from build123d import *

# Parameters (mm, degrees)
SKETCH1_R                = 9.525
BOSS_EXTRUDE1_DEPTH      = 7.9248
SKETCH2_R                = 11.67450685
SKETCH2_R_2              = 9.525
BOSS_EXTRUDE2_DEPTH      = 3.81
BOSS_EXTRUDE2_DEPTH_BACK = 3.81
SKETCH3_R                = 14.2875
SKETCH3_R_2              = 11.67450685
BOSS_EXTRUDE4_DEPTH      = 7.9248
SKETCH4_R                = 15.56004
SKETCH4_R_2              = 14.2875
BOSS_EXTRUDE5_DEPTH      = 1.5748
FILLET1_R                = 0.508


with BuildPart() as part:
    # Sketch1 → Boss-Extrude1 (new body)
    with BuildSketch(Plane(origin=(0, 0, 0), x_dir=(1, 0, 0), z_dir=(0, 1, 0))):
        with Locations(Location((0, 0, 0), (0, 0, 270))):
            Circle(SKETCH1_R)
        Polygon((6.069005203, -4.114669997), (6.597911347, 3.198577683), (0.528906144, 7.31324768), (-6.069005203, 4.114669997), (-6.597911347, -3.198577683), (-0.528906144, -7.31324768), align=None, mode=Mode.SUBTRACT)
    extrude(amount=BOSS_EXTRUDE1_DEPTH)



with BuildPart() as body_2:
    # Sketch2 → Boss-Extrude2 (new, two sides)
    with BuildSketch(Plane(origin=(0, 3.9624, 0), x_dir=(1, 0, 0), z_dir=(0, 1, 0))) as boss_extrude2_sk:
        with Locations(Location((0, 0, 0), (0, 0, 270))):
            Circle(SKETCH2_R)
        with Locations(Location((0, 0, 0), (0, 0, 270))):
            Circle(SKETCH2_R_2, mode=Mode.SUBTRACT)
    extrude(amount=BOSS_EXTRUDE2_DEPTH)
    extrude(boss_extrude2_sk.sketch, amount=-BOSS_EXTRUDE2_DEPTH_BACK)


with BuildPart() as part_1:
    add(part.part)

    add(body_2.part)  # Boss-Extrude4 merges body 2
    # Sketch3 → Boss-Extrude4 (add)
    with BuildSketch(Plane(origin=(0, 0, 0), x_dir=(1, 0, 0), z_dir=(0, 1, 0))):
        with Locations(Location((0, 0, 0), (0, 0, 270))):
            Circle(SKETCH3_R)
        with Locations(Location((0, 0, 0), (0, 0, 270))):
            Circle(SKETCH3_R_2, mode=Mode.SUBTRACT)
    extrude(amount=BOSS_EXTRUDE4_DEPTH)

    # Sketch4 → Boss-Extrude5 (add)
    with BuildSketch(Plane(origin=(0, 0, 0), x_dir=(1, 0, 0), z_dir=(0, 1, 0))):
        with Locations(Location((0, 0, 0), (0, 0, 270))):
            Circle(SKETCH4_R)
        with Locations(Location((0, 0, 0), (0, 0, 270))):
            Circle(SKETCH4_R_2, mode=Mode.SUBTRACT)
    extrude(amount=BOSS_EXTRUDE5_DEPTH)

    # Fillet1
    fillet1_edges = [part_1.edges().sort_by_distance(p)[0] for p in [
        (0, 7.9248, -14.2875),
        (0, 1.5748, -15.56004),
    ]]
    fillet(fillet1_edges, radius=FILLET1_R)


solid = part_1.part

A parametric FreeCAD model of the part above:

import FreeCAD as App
import Part
import Sketcher

V = App.Vector
Q = App.Units.Quantity


def edges_at(feature, points):
    """Names of the edges that pass closest to the given points."""
    edges = feature.Shape.Edges
    near = lambda p: min(range(len(edges)), key=lambda i: edges[i].distToShape(Part.Vertex(*p))[0])
    return sorted({f"Edge{near(p) + 1}" for p in points})

doc = App.newDocument("Part")
body = doc.addObject("PartDesign::Body", "Body")

sketch1 = body.newObject("Sketcher::SketchObject", "Sketch")
sketch1.AttachmentSupport = (doc.getObject("XZ_Plane"), [""])
sketch1.MapMode = "FlatFace"
sketch1.addGeometry(Part.Circle(V(0, 0, 0), V(0, 0, 1), 10), False)
sketch1.addGeometry(Part.LineSegment(V(7, -3, 0), V(6, 4, 0)), False)
sketch1.addGeometry(Part.LineSegment(V(6, 4, 0), V(-1, 7, 0)), False)
sketch1.addGeometry(Part.LineSegment(V(-1, 7, 0), V(-7, 3, 0)), False)
sketch1.addGeometry(Part.LineSegment(V(-7, 3, 0), V(-6, -4, 0)), False)
sketch1.addGeometry(Part.LineSegment(V(-6, -4, 0), V(1, -7, 0)), False)
sketch1.addGeometry(Part.LineSegment(V(1, -7, 0), V(7, -3, 0)), False)
sketch1.addConstraint(Sketcher.Constraint("Coincident", 1, 2, 2, 1))
sketch1.addConstraint(Sketcher.Constraint("Coincident", 2, 2, 3, 1))
sketch1.addConstraint(Sketcher.Constraint("Coincident", 3, 2, 4, 1))
sketch1.addConstraint(Sketcher.Constraint("Coincident", 4, 2, 5, 1))
sketch1.addConstraint(Sketcher.Constraint("Coincident", 5, 2, 6, 1))
sketch1.addConstraint(Sketcher.Constraint("Coincident", 6, 2, 1, 1))
sketch1.addConstraint(Sketcher.Constraint("Coincident", 0, 3, -1, 1))
sketch1.addConstraint(Sketcher.Constraint("Symmetric", 1, 2, 4, 2, -1, 1))
sketch1.addConstraint(Sketcher.Constraint("Symmetric", 2, 2, 5, 2, -1, 1))
sketch1.addConstraint(Sketcher.Constraint("Symmetric", 3, 2, 6, 2, -1, 1))
sketch1.addConstraint(Sketcher.Constraint("Equal", 1, 2))
sketch1.addConstraint(Sketcher.Constraint("Equal", 2, 3))
sketch1.addConstraint(Sketcher.Constraint("Diameter", 0, Q("0.75 in")))
sketch1.addConstraint(Sketcher.Constraint("DistanceX", 4, 2, 2, 2, Q("5.540099 mm")))
sketch1.addConstraint(Sketcher.Constraint("Distance", 1, Q("7.332348 mm")))
sketch1.addConstraint(Sketcher.Constraint("DistanceY", -1, 1, 1, 2, Q("4.11467 mm")))
sketch1.addConstraint(Sketcher.Constraint("DistanceX", 3, 2, -1, 1, Q("6.597911 mm")))
pad1 = body.newObject("PartDesign::Pad", "Pad")
pad1.Profile = sketch1
pad1.Length = Q("0.312 in")
pad1.Reversed = True
body2 = doc.addObject("PartDesign::Body", "Body001")

sketch2 = body2.newObject("Sketcher::SketchObject", "Sketch001")
sketch2.AttachmentSupport = (doc.getObject("XZ_Plane001"), [""])
sketch2.MapMode = "FlatFace"
sketch2.AttachmentOffset = App.Placement(V(0, 0, -0.156 * 25.4), App.Rotation())
sketch2.addGeometry(Part.Circle(V(0, 0, 0), V(0, 0, 1), 12), False)
sketch2.addGeometry(Part.Circle(V(0, 0, 0), V(0, 0, 1), 10), False)
sketch2.addConstraint(Sketcher.Constraint("Coincident", 0, 3, -1, 1))
sketch2.addConstraint(Sketcher.Constraint("Coincident", 1, 3, -1, 1))
sketch2.addConstraint(Sketcher.Constraint("Diameter", 1, Q("0.75 in")))
sketch2.addConstraint(Sketcher.Constraint("Diameter", 0, Q("23.349014 mm")))
pad2 = body2.newObject("PartDesign::Pad", "Pad001")
pad2.Profile = sketch2
pad2.Type = "TwoLengths"
pad2.Length = Q("0.15 in")
pad2.Length2 = Q("0.15 in")
pad2.Reversed = True
doc.recompute()

boolean = body.newObject("PartDesign::Boolean", "Boolean")
boolean.Type = "Fuse"
boolean.addObjects([body2])

sketch3 = body.newObject("Sketcher::SketchObject", "Sketch002")
sketch3.AttachmentSupport = (doc.getObject("XZ_Plane"), [""])
sketch3.MapMode = "FlatFace"
sketch3.addGeometry(Part.Circle(V(0, 0, 0), V(0, 0, 1), 14), False)
sketch3.addGeometry(Part.Circle(V(0, 0, 0), V(0, 0, 1), 12), False)
sketch3.addConstraint(Sketcher.Constraint("Coincident", 0, 3, -1, 1))
sketch3.addConstraint(Sketcher.Constraint("Coincident", 1, 3, -1, 1))
sketch3.addConstraint(Sketcher.Constraint("Diameter", 0, Q("1.125 in")))
sketch3.addConstraint(Sketcher.Constraint("Diameter", 1, Q("23.349014 mm")))
pad3 = body.newObject("PartDesign::Pad", "Pad002")
pad3.Profile = sketch3
pad3.Length = Q("0.312 in")
pad3.Reversed = True

sketch4 = body.newObject("Sketcher::SketchObject", "Sketch003")
sketch4.AttachmentSupport = (doc.getObject("XZ_Plane"), [""])
sketch4.MapMode = "FlatFace"
sketch4.addGeometry(Part.Circle(V(0, 0, 0), V(0, 0, 1), 16), False)
sketch4.addGeometry(Part.Circle(V(0, 0, 0), V(0, 0, 1), 14), False)
sketch4.addConstraint(Sketcher.Constraint("Coincident", 0, 3, -1, 1))
sketch4.addConstraint(Sketcher.Constraint("Coincident", 1, 3, -1, 1))
sketch4.addConstraint(Sketcher.Constraint("Diameter", 1, Q("1.125 in")))
sketch4.addConstraint(Sketcher.Constraint("Diameter", 0, Q("1.2252 in")))
pad4 = body.newObject("PartDesign::Pad", "Pad003")
pad4.Profile = sketch4
pad4.Length = Q("0.062 in")
pad4.Reversed = True
doc.recompute()

fillet = body.newObject("PartDesign::Fillet", "Fillet")
fillet.Base = (pad4, edges_at(pad4, [(0, 7.925, -14.287), (0, 1.575, -15.56)]))
fillet.Radius = Q("0.02 in")

doc.recompute()
